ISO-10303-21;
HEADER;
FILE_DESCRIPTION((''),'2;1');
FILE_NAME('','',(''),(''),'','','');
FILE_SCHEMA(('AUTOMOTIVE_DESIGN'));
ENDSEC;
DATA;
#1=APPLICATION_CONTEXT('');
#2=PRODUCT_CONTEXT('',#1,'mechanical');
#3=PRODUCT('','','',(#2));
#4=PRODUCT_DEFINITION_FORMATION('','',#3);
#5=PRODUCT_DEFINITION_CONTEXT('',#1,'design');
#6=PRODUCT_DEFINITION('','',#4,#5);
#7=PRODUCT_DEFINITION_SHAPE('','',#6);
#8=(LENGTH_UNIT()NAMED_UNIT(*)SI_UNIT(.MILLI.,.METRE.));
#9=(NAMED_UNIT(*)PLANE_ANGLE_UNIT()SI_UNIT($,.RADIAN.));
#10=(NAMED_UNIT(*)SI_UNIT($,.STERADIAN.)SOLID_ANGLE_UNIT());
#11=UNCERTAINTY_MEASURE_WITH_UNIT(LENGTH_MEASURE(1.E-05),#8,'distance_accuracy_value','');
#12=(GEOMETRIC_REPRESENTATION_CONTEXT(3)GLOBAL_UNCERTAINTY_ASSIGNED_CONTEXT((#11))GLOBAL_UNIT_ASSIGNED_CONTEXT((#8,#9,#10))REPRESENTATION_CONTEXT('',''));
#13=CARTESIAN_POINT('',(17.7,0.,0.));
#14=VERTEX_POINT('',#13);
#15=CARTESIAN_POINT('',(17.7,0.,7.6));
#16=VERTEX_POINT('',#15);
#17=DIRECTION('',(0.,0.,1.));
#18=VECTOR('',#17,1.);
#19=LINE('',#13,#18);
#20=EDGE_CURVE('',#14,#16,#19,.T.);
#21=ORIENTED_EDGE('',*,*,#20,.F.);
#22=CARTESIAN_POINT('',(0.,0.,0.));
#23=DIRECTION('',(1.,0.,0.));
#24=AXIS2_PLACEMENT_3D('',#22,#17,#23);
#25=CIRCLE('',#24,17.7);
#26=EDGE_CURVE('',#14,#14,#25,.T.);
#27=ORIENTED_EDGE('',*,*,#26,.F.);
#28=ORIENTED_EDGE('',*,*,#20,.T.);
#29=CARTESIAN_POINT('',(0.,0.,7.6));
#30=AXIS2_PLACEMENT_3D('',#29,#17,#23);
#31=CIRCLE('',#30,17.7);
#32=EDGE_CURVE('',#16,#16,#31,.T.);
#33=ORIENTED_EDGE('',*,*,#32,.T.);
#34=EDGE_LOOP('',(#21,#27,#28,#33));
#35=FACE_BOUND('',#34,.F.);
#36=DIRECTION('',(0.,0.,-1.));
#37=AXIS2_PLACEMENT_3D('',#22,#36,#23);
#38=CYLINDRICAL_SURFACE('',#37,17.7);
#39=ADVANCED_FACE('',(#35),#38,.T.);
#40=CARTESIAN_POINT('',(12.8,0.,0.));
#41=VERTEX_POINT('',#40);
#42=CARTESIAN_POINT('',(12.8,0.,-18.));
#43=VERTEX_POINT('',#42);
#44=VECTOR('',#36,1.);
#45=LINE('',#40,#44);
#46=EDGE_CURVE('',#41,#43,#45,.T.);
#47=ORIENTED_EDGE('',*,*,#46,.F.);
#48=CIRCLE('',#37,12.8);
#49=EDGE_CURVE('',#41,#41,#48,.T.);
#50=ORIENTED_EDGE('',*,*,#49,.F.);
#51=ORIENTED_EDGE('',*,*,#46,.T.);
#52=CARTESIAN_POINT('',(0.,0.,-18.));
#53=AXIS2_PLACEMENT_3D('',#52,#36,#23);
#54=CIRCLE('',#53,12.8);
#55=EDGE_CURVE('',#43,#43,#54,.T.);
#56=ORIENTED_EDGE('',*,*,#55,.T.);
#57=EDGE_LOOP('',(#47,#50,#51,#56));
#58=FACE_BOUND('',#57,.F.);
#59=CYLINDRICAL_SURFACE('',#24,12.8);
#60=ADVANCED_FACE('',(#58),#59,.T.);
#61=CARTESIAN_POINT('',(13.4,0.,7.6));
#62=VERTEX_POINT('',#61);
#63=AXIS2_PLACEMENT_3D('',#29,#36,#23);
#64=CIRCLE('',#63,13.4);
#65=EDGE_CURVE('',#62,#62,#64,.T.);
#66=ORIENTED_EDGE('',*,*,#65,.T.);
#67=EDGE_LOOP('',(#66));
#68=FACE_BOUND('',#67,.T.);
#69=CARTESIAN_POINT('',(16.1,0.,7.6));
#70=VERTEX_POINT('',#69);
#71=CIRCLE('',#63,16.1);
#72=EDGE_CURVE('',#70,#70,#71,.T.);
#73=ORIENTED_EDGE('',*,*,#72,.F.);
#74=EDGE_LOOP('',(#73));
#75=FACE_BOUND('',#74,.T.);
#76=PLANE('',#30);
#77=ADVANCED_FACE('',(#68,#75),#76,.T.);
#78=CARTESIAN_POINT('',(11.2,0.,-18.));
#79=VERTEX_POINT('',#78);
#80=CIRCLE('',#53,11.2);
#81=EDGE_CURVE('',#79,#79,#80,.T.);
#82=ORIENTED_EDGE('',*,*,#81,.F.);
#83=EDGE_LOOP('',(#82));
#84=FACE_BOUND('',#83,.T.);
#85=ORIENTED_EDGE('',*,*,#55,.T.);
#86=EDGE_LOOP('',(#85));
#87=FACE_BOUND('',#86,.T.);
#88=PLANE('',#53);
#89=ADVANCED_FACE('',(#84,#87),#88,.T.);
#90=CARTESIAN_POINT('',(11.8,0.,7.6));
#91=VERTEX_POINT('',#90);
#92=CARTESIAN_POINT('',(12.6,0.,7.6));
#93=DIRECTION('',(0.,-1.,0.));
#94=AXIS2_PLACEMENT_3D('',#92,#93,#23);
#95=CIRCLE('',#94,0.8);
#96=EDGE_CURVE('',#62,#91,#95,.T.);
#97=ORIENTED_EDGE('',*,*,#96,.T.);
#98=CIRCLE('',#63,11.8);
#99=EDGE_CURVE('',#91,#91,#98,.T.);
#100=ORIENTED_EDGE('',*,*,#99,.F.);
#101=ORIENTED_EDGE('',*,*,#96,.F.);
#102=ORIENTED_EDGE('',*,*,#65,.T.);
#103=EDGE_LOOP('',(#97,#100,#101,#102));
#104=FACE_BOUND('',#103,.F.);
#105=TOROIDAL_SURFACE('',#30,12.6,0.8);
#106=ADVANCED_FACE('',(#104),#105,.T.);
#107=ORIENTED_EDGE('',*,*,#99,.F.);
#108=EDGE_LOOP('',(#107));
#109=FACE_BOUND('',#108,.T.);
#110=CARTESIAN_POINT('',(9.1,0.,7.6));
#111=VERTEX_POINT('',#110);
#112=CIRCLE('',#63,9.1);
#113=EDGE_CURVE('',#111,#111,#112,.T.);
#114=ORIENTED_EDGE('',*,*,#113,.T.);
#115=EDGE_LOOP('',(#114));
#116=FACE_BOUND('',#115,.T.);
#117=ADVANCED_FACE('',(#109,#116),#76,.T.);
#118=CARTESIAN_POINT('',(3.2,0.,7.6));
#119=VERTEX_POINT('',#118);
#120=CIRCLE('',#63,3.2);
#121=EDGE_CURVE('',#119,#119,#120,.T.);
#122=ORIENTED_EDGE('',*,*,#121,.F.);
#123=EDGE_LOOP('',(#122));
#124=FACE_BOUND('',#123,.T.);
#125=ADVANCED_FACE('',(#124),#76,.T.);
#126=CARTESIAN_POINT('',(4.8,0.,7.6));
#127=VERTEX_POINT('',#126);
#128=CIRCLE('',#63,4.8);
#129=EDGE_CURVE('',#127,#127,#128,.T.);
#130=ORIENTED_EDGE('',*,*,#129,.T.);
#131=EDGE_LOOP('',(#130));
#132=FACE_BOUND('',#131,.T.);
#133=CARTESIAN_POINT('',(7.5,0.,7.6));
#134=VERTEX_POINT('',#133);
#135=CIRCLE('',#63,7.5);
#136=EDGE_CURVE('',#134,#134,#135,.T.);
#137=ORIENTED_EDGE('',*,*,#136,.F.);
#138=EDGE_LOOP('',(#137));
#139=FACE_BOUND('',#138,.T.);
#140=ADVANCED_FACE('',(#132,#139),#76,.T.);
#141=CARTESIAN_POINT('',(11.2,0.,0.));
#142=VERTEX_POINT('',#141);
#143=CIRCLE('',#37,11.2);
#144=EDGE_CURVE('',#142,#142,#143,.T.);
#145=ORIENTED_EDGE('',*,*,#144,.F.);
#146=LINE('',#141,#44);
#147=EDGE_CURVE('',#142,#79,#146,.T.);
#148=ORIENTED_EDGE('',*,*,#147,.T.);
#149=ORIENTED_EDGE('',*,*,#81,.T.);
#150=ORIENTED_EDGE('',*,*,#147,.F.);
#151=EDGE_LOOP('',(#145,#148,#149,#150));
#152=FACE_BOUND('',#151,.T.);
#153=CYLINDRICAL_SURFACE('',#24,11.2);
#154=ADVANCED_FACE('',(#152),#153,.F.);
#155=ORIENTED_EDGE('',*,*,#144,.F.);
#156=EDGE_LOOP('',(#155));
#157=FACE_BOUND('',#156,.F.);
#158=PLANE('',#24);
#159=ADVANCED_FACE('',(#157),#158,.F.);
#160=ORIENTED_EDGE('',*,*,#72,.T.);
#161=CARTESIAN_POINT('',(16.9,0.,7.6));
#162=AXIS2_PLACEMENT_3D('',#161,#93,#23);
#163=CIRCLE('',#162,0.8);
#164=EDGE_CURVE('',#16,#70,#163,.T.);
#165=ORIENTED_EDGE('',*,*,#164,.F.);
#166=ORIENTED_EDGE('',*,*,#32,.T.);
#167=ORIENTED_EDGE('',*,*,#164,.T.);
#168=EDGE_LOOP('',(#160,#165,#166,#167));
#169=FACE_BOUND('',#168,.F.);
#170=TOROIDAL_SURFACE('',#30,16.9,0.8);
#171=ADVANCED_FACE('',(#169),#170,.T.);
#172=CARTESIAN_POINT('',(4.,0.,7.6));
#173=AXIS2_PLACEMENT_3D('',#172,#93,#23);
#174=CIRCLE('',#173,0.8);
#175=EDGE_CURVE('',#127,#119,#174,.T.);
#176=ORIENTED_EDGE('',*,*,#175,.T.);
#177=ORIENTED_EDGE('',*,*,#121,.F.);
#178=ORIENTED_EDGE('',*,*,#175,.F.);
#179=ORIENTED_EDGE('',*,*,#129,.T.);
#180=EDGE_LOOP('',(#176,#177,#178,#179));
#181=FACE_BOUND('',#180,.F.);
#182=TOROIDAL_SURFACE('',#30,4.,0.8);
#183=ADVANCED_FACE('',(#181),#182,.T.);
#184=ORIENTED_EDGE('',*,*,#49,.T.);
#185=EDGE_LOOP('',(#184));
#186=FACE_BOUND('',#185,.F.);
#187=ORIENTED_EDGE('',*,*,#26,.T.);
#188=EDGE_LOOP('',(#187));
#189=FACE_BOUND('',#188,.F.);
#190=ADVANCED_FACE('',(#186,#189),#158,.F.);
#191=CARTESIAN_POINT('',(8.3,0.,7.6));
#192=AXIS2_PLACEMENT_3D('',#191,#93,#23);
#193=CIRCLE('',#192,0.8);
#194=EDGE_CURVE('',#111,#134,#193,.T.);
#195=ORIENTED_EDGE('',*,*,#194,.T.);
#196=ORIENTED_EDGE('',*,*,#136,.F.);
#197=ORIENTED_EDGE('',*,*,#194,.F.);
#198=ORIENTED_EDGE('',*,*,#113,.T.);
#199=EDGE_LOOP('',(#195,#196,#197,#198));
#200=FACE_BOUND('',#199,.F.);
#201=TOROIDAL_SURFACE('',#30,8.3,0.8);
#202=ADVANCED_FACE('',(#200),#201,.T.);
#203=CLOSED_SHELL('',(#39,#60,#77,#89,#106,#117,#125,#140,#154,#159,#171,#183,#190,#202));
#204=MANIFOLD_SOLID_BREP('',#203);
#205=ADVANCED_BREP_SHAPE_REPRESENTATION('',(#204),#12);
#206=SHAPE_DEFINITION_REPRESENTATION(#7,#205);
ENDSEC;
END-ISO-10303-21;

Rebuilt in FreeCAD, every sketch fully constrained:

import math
import FreeCAD as App
import Part
import Sketcher
Q = App.Units.Quantity

doc = App.newDocument("Part")
body = doc.addObject("PartDesign::Body", "Body")

sketch1 = body.newObject("Sketcher::SketchObject", "Sketch")
sketch1.AttachmentSupport = (doc.getObject("XY_Plane"), [""])
sketch1.MapMode = "FlatFace"
sketch1.addGeometry(Part.Circle(App.Vector(0, 0, 0), App.Vector(0, 0, 1), 17.7), False)
sketch1.addConstraint([
    Sketcher.Constraint("Coincident", 0, 3, -1, 1),
    Sketcher.Constraint("Diameter", 0, Q("35.4 mm")),
])
pad1 = body.newObject("PartDesign::Pad", "Pad")
pad1.Profile = sketch1
pad1.Length = 7.6

sketch2 = body.newObject("Sketcher::SketchObject", "Sketch001")
sketch2.AttachmentSupport = (doc.getObject("XZ_Plane"), [""])
sketch2.MapMode = "FlatFace"
sketch2.addGeometry([
    Part.LineSegment(App.Vector(3.2, 7.6, 0), App.Vector(4.8, 7.6, 0)),
    Part.ArcOfCircle(Part.Circle(App.Vector(4, 7.6, 0), App.Vector(0, 0, 1), 0.8), math.radians(0), math.radians(180)),
    Part.ArcOfCircle(Part.Circle(App.Vector(8.3, 7.6, 0), App.Vector(0, 0, 1), 0.8), math.radians(0), math.radians(180)),
    Part.LineSegment(App.Vector(7.5, 7.6, 0), App.Vector(9.1, 7.6, 0)),
    Part.ArcOfCircle(Part.Circle(App.Vector(12.6, 7.6, 0), App.Vector(0, 0, 1), 0.8), math.radians(0), math.radians(180)),
    Part.LineSegment(App.Vector(11.8, 7.6, 0), App.Vector(13.4, 7.6, 0)),
    Part.ArcOfCircle(Part.Circle(App.Vector(16.9, 7.6, 0), App.Vector(0, 0, 1), 0.8), math.radians(0), math.radians(180)),
    Part.LineSegment(App.Vector(16.1, 7.6, 0), App.Vector(17.7, 7.6, 0)),
], False)
sketch2.addConstraint([
    Sketcher.Constraint("Coincident", 0, 1, 1, 2),
    Sketcher.Constraint("Coincident", 1, 1, 0, 2),
    Sketcher.Constraint("Coincident", 2, 1, 3, 2),
    Sketcher.Constraint("Coincident", 3, 1, 2, 2),
    Sketcher.Constraint("Coincident", 4, 1, 5, 2),
    Sketcher.Constraint("Coincident", 5, 1, 4, 2),
    Sketcher.Constraint("Coincident", 6, 1, 7, 2),
    Sketcher.Constraint("Coincident", 7, 1, 6, 2),
    Sketcher.Constraint("Horizontal", 0),
    Sketcher.Constraint("Horizontal", 3),
    Sketcher.Constraint("Horizontal", 5),
    Sketcher.Constraint("Horizontal", 7),
    Sketcher.Constraint("Equal", 1, 2),
    Sketcher.Constraint("Equal", 2, 4),
    Sketcher.Constraint("Equal", 4, 6),
    Sketcher.Constraint("Horizontal", 1, 3, 2, 3),
    Sketcher.Constraint("Horizontal", 2, 3, 4, 3),
    Sketcher.Constraint("Horizontal", 4, 3, 6, 3),
    Sketcher.Constraint("Horizontal", 6, 3, 0, 1),
    Sketcher.Constraint("Horizontal", 1, 1, 2, 1),
    Sketcher.Constraint("Horizontal", 3, 1, 4, 1),
    Sketcher.Constraint("Horizontal", 5, 1, 6, 1),
    Sketcher.Constraint("Radius", 1, Q("0.8 mm")),
    Sketcher.Constraint("DistanceX", -1, 1, 1, 3, Q("4 mm")),
    Sketcher.Constraint("DistanceY", -1, 1, 1, 3, Q("7.6 mm")),
    Sketcher.Constraint("DistanceX", -1, 1, 2, 3, Q("8.3 mm")),
    Sketcher.Constraint("DistanceX", -1, 1, 4, 3, Q("12.6 mm")),
    Sketcher.Constraint("DistanceX", -1, 1, 6, 3, Q("16.9 mm")),
])
revolution = body.newObject("PartDesign::Revolution", "Revolution")
revolution.Profile = sketch2
revolution.ReferenceAxis = (sketch2, ["V_Axis"])
revolution.Angle = 360

sketch3 = body.newObject("Sketcher::SketchObject", "Sketch002")
sketch3.AttachmentSupport = (doc.getObject("XY_Plane"), [""])
sketch3.MapMode = "FlatFace"
sketch3.addGeometry([
    Part.Circle(App.Vector(0, 0, 0), App.Vector(0, 0, 1), 12.8),
    Part.Circle(App.Vector(0, 0, 0), App.Vector(0, 0, 1), 11.2),
], False)
sketch3.addConstraint([
    Sketcher.Constraint("Coincident", 0, 3, -1, 1),
    Sketcher.Constraint("Coincident", 1, 3, -1, 1),
    Sketcher.Constraint("Diameter", 0, Q("25.6 mm")),
    Sketcher.Constraint("Diameter", 1, Q("22.4 mm")),
])
pad2 = body.newObject("PartDesign::Pad", "Pad001")
pad2.Profile = sketch3
pad2.Length = 18
pad2.Reversed = True

doc.recompute()
